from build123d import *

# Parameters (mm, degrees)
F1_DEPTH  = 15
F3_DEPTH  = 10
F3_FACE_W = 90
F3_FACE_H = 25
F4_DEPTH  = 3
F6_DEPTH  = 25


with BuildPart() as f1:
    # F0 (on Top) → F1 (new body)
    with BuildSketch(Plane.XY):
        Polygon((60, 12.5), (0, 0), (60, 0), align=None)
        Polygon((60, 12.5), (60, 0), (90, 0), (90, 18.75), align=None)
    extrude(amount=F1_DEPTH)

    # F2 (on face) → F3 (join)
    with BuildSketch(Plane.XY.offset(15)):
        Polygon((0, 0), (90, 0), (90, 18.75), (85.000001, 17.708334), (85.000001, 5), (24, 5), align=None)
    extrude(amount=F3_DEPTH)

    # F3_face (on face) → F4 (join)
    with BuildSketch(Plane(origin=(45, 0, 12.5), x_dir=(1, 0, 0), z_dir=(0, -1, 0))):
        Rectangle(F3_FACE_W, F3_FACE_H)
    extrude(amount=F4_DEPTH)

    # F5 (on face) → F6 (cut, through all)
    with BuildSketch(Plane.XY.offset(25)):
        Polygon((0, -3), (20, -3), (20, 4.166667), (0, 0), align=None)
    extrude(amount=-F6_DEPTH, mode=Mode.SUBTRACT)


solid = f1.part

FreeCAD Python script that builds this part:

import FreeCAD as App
import Part
import Sketcher
from FreeCAD import Vector

doc = App.newDocument("Part")
params = doc.addObject("Spreadsheet::Sheet", "Params")
for row, (alias, value) in enumerate([
    ("sketch1_width", "90 mm"),
    ("sketch1_height", "18.75 mm"),
    ("pad1_length", "15 mm"),
    ("sketch2_width", "90 mm"),
    ("sketch2_width2", "61.000001 mm"),
    ("sketch2_height", "18.75 mm"),
    ("pad2_length", "10 mm"),
    ("sketch3_width", "90 mm"),
    ("sketch3_height", "25 mm"),
    ("pad3_length", "3 mm"),
    ("sketch4_width", "20 mm"),
    ("sketch4_height", "3 mm"),
], start=1):
    params.set(f"A{row}", alias)
    params.set(f"B{row}", "=" + value)
    params.setAlias(f"B{row}", alias)

body = doc.addObject("PartDesign::Body", "Body")

# Sketch on XY plane
sketch1 = body.newObject("Sketcher::SketchObject", "Sketch")
sketch1.AttachmentSupport = (doc.getObject("XY_Plane"), [""])
sketch1.MapMode = "FlatFace"
sketch1.addGeometry([
    Part.LineSegment(Vector(0, 0, 0), Vector(90, 0, 0)),
    Part.LineSegment(Vector(90, 0, 0), Vector(90, 18.75, 0)),
    Part.LineSegment(Vector(90, 18.75, 0), Vector(0, 0, 0)),
], False)
sketch1.addConstraint([
    Sketcher.Constraint("Coincident", 0, 2, 1, 1),
    Sketcher.Constraint("Coincident", 1, 2, 2, 1),
    Sketcher.Constraint("Coincident", 2, 2, 0, 1),
    Sketcher.Constraint("Horizontal", 0),
    Sketcher.Constraint("Vertical", 1),
    Sketcher.Constraint("Coincident", 2, 2, -1, 1),
    Sketcher.Constraint("DistanceX", 0, 1, 0, 2, 90.0),
    Sketcher.Constraint("DistanceY", 1, 1, 1, 2, 18.75),
])
sketch1.setExpression("Constraints[6]", "Params.sketch1_width")
sketch1.setExpression("Constraints[7]", "Params.sketch1_height")
pad1 = body.newObject("PartDesign::Pad", "Pad")
pad1.Profile = sketch1
pad1.setExpression("Length", "Params.pad1_length")

# Sketch on XY plane
sketch2 = body.newObject("Sketcher::SketchObject", "Sketch001")
sketch2.AttachmentSupport = (doc.getObject("XY_Plane"), [""])
sketch2.MapMode = "FlatFace"
sketch2.AttachmentOffset = App.Placement(Vector(0, 0, 15), App.Rotation())
sketch2.addGeometry([
    Part.LineSegment(Vector(0, 0, 0), Vector(90, 0, 0)),  # 0
    Part.LineSegment(Vector(90, 0, 0), Vector(90, 18.75, 0)),  # 1
    Part.LineSegment(Vector(90, 18.75, 0), Vector(85.000001, 17.708334, 0)),  # 2
    Part.LineSegment(Vector(85.000001, 17.708334, 0), Vector(85.000001, 5, 0)),  # 3
    Part.LineSegment(Vector(85.000001, 5, 0), Vector(24, 5, 0)),  # 4
    Part.LineSegment(Vector(24, 5, 0), Vector(0, 0, 0)),  # 5
], False)
sketch2.addConstraint([
    Sketcher.Constraint("Coincident", 0, 2, 1, 1),
    Sketcher.Constraint("Coincident", 1, 2, 2, 1),
    Sketcher.Constraint("Coincident", 2, 2, 3, 1),
    Sketcher.Constraint("Coincident", 3, 2, 4, 1),
    Sketcher.Constraint("Coincident", 4, 2, 5, 1),
    Sketcher.Constraint("Coincident", 5, 2, 0, 1),
    Sketcher.Constraint("Horizontal", 0),
    Sketcher.Constraint("Vertical", 1),
    Sketcher.Constraint("Vertical", 3),
    Sketcher.Constraint("Horizontal", 4),
    Sketcher.Constraint("Coincident", 5, 2, -1, 1),
    Sketcher.Constraint("Parallel", 2, 5),
    Sketcher.Constraint("DistanceX", 0, 1, 0, 2, 90.0),
    Sketcher.Constraint("DistanceX", 4, 2, 4, 1, 61.000001),
    Sketcher.Constraint("DistanceX", -1, 1, 2, 2, 85.000001),
    Sketcher.Constraint("DistanceY", -1, 1, 3, 2, 5.0),
    Sketcher.Constraint("DistanceY", 1, 1, 1, 2, 18.75),
])
sketch2.setExpression("Constraints[12]", "Params.sketch2_width")
sketch2.setExpression("Constraints[13]", "Params.sketch2_width2")
sketch2.setExpression("Constraints[16]", "Params.sketch2_height")
pad2 = body.newObject("PartDesign::Pad", "Pad001")
pad2.Profile = sketch2
pad2.setExpression("Length", "Params.pad2_length")

# Sketch on XZ plane
sketch3 = body.newObject("Sketcher::SketchObject", "Sketch002")
sketch3.AttachmentSupport = (doc.getObject("XZ_Plane"), [""])
sketch3.MapMode = "FlatFace"
sketch3.addGeometry([
    Part.LineSegment(Vector(0, 25, 0), Vector(0, 0, 0)),
    Part.LineSegment(Vector(0, 0, 0), Vector(90, 0, 0)),
    Part.LineSegment(Vector(90, 0, 0), Vector(90, 25, 0)),
    Part.LineSegment(Vector(90, 25, 0), Vector(0, 25, 0)),
], False)
sketch3.addConstraint([
    Sketcher.Constraint("Coincident", 0, 2, 1, 1),
    Sketcher.Constraint("Coincident", 1, 2, 2, 1),
    Sketcher.Constraint("Coincident", 2, 2, 3, 1),
    Sketcher.Constraint("Coincident", 3, 2, 0, 1),
    Sketcher.Constraint("Vertical", 0),
    Sketcher.Constraint("Horizontal", 1),
    Sketcher.Constraint("Vertical", 2),
    Sketcher.Constraint("Horizontal", 3),
    Sketcher.Constraint("Coincident", 0, 2, -1, 1),
    Sketcher.Constraint("DistanceX", 1, 1, 1, 2, 90.0),
    Sketcher.Constraint("DistanceY", 0, 2, 0, 1, 25.0),
])
sketch3.setExpression("Constraints[9]", "Params.sketch3_width")
sketch3.setExpression("Constraints[10]", "Params.sketch3_height")
pad3 = body.newObject("PartDesign::Pad", "Pad002")
pad3.Profile = sketch3
pad3.setExpression("Length", "Params.pad3_length")

# Sketch on XY plane
sketch4 = body.newObject("Sketcher::SketchObject", "Sketch003")
sketch4.AttachmentSupport = (doc.getObject("XY_Plane"), [""])
sketch4.MapMode = "FlatFace"
sketch4.AttachmentOffset = App.Placement(Vector(0, 0, 25), App.Rotation())
sketch4.addGeometry([
    Part.LineSegment(Vector(0, -3, 0), Vector(20, -3, 0)),
    Part.LineSegment(Vector(20, -3, 0), Vector(20, 4.166667, 0)),
    Part.LineSegment(Vector(20, 4.166667, 0), Vector(0, 0, 0)),
    Part.LineSegment(Vector(0, 0, 0), Vector(0, -3, 0)),
], False)
sketch4.addConstraint([
    Sketcher.Constraint("Coincident", 0, 2, 1, 1),
    Sketcher.Constraint("Coincident", 1, 2, 2, 1),
    Sketcher.Constraint("Coincident", 2, 2, 3, 1),
    Sketcher.Constraint("Coincident", 3, 2, 0, 1),
    Sketcher.Constraint("Horizontal", 0),
    Sketcher.Constraint("Vertical", 1),
    Sketcher.Constraint("Vertical", 3),
    Sketcher.Constraint("Coincident", 2, 2, -1, 1),
    Sketcher.Constraint("DistanceX", 0, 1, 0, 2, 20.0),
    Sketcher.Constraint("DistanceY", 3, 2, 3, 1, 3.0),
    Sketcher.Constraint("DistanceY", 1, 1, 1, 2, 7.166667),
])
sketch4.setExpression("Constraints[8]", "Params.sketch4_width")
sketch4.setExpression("Constraints[9]", "Params.sketch4_height")
pocket1 = body.newObject("PartDesign::Pocket", "Pocket")
pocket1.Profile = sketch4
pocket1.Type = "ThroughAll"

doc.recompute()
